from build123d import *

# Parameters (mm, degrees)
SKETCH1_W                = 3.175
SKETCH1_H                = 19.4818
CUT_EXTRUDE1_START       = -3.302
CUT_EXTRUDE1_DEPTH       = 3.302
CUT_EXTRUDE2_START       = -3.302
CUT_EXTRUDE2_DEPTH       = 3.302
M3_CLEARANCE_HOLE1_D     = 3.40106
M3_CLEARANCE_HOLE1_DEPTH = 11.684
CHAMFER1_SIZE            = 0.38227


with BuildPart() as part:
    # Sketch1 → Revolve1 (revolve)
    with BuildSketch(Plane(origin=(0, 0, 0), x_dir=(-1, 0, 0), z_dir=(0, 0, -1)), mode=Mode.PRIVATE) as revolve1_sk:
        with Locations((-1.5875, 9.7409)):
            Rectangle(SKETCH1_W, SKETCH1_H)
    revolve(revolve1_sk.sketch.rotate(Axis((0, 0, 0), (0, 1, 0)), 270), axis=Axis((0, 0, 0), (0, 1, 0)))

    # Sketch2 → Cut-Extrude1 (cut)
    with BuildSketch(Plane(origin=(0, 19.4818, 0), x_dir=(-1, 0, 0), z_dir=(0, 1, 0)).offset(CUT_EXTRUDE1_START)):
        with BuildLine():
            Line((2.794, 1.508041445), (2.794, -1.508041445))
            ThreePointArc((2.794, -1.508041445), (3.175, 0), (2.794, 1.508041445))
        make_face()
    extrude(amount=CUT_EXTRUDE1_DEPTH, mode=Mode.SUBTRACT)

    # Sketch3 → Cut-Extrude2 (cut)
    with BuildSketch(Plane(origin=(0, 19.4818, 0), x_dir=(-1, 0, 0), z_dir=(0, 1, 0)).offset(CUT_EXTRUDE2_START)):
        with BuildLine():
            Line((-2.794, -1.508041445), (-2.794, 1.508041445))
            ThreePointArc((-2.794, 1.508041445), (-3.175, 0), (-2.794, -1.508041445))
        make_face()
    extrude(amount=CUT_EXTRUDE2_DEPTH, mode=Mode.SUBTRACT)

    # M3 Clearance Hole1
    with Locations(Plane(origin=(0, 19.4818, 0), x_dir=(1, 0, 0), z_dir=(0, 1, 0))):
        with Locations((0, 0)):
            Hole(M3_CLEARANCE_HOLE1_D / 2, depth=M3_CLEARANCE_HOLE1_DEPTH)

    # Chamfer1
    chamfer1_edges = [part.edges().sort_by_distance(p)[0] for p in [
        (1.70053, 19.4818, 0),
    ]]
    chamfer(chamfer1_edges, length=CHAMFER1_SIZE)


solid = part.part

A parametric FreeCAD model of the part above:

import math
import FreeCAD as App
import Part
import Sketcher
Q = App.Units.Quantity


def edges_at(feature, points):
    """Names of the edges that pass closest to the given points."""
    edges = feature.Shape.Edges
    near = lambda p: min(range(len(edges)), key=lambda i: edges[i].distToShape(Part.Vertex(*p))[0])
    return sorted({f"Edge{near(p) + 1}" for p in points})


def add_polygon(sketch, points):
    """Adds a closed chain of lines whose ends are joined by coincident constraints."""
    first, n = sketch.GeometryCount, len(points)
    for a, b in zip(points, points[1:] + points[:1]):
        sketch.addGeometry(Part.LineSegment(App.Vector(*a, 0), App.Vector(*b, 0)), False)
    for i in range(n):
        sketch.addConstraint(Sketcher.Constraint("Coincident", first + i, 2, first + (i + 1) % n, 1))

doc = App.newDocument("Part")
body = doc.addObject("PartDesign::Body", "Body")

# Sketch on XY plane
sketch1 = body.newObject("Sketcher::SketchObject", "Sketch")
sketch1.AttachmentSupport = (doc.getObject("XY_Plane"), [""])
sketch1.MapMode = "FlatFace"
add_polygon(sketch1, [(3.2, 19.5), (3.2, 0), (0, 0), (0, 19.5)])  # lines 0-3
sketch1.addConstraint([
    Sketcher.Constraint("Vertical", 0),
    Sketcher.Constraint("Horizontal", 1),
    Sketcher.Constraint("Vertical", 2),
    Sketcher.Constraint("Horizontal", 3),
    Sketcher.Constraint("Coincident", 1, 2, -1, 1),
    Sketcher.Constraint("DistanceX", 1, 2, 1, 1, Q("0.125 in")),
    Sketcher.Constraint("DistanceY", 0, 2, 0, 1, Q("0.767 in")),
])
revolution = body.newObject("PartDesign::Revolution", "Revolution")
revolution.Profile = sketch1
revolution.ReferenceAxis = (sketch1, ["V_Axis"])
revolution.Angle = 360

# Sketch on XZ plane
sketch2 = body.newObject("Sketcher::SketchObject", "Sketch001")
sketch2.AttachmentSupport = (doc.getObject("XZ_Plane"), [""])
sketch2.MapMode = "FlatFace"
sketch2.AttachmentOffset = App.Placement(App.Vector(0, 0, -0.637 * 25.4), App.Rotation())
sketch2.addGeometry([
    Part.LineSegment(App.Vector(-2.8, 1.5, 0), App.Vector(-2.8, -1.5, 0)),
    Part.ArcOfCircle(Part.Circle(App.Vector(0, 0, 0), App.Vector(0, 0, 1), 3.2), math.radians(152), math.radians(208)),
], False)
sketch2.addConstraint([
    Sketcher.Constraint("Coincident", 0, 1, 1, 1),
    Sketcher.Constraint("Coincident", 1, 2, 0, 2),
    Sketcher.Constraint("Vertical", 0),
    Sketcher.Constraint("Coincident", 1, 3, -1, 1),
    Sketcher.Constraint("Radius", 1, Q("0.125 in")),
    Sketcher.Constraint("DistanceX", 0, 1, -1, 1, Q("0.11 in")),
])
pocket1 = body.newObject("PartDesign::Pocket", "Pocket")
pocket1.Profile = sketch2
pocket1.Length = Q("0.13 in")

# Sketch on XZ plane
sketch3 = body.newObject("Sketcher::SketchObject", "Sketch002")
sketch3.AttachmentSupport = (doc.getObject("XZ_Plane"), [""])
sketch3.MapMode = "FlatFace"
sketch3.AttachmentOffset = App.Placement(App.Vector(0, 0, -0.637 * 25.4), App.Rotation())
sketch3.addGeometry([
    Part.LineSegment(App.Vector(2.8, -1.5, 0), App.Vector(2.8, 1.5, 0)),
    Part.ArcOfCircle(Part.Circle(App.Vector(0, 0, 0), App.Vector(0, 0, 1), 3.2), math.radians(-28), math.radians(28)),
], False)
sketch3.addConstraint([
    Sketcher.Constraint("Coincident", 0, 1, 1, 1),
    Sketcher.Constraint("Coincident", 1, 2, 0, 2),
    Sketcher.Constraint("Vertical", 0),
    Sketcher.Constraint("Coincident", 1, 3, -1, 1),
    Sketcher.Constraint("Radius", 1, Q("0.125 in")),
    Sketcher.Constraint("DistanceX", -1, 1, 0, 1, Q("0.11 in")),
])
pocket2 = body.newObject("PartDesign::Pocket", "Pocket001")
pocket2.Profile = sketch3
pocket2.Length = Q("0.13 in")

# Sketch on XZ plane
sketch4 = body.newObject("Sketcher::SketchObject", "Sketch003")
sketch4.AttachmentSupport = (doc.getObject("XZ_Plane"), [""])
sketch4.MapMode = "FlatFace"
sketch4.AttachmentOffset = App.Placement(App.Vector(0, 0, -0.767 * 25.4), App.Rotation())
sketch4.addGeometry(Part.Circle(App.Vector(0, 0, 0), App.Vector(0, 0, 1), 1.7), False)
sketch4.addConstraint([
    Sketcher.Constraint("Coincident", 0, 3, -1, 1),
    Sketcher.Constraint("Diameter", 0, Q("0.1339 in")),
])
doc.recompute()
hole = body.newObject("PartDesign::Hole", "Hole")
hole.Profile = sketch4
hole.ThreadType = "None"
hole.Diameter = Q("0.1339 in")
hole.DepthType = "Dimension"
hole.Depth = Q("0.46 in")
hole.DrillPoint = "Flat"
hole.Reversed = True
doc.recompute()

chamfer = body.newObject("PartDesign::Chamfer", "Chamfer")
chamfer.Base = (hole, edges_at(hole, [(1.701, 19.482, 0)]))
chamfer.Size = 0.38227

doc.recompute()
